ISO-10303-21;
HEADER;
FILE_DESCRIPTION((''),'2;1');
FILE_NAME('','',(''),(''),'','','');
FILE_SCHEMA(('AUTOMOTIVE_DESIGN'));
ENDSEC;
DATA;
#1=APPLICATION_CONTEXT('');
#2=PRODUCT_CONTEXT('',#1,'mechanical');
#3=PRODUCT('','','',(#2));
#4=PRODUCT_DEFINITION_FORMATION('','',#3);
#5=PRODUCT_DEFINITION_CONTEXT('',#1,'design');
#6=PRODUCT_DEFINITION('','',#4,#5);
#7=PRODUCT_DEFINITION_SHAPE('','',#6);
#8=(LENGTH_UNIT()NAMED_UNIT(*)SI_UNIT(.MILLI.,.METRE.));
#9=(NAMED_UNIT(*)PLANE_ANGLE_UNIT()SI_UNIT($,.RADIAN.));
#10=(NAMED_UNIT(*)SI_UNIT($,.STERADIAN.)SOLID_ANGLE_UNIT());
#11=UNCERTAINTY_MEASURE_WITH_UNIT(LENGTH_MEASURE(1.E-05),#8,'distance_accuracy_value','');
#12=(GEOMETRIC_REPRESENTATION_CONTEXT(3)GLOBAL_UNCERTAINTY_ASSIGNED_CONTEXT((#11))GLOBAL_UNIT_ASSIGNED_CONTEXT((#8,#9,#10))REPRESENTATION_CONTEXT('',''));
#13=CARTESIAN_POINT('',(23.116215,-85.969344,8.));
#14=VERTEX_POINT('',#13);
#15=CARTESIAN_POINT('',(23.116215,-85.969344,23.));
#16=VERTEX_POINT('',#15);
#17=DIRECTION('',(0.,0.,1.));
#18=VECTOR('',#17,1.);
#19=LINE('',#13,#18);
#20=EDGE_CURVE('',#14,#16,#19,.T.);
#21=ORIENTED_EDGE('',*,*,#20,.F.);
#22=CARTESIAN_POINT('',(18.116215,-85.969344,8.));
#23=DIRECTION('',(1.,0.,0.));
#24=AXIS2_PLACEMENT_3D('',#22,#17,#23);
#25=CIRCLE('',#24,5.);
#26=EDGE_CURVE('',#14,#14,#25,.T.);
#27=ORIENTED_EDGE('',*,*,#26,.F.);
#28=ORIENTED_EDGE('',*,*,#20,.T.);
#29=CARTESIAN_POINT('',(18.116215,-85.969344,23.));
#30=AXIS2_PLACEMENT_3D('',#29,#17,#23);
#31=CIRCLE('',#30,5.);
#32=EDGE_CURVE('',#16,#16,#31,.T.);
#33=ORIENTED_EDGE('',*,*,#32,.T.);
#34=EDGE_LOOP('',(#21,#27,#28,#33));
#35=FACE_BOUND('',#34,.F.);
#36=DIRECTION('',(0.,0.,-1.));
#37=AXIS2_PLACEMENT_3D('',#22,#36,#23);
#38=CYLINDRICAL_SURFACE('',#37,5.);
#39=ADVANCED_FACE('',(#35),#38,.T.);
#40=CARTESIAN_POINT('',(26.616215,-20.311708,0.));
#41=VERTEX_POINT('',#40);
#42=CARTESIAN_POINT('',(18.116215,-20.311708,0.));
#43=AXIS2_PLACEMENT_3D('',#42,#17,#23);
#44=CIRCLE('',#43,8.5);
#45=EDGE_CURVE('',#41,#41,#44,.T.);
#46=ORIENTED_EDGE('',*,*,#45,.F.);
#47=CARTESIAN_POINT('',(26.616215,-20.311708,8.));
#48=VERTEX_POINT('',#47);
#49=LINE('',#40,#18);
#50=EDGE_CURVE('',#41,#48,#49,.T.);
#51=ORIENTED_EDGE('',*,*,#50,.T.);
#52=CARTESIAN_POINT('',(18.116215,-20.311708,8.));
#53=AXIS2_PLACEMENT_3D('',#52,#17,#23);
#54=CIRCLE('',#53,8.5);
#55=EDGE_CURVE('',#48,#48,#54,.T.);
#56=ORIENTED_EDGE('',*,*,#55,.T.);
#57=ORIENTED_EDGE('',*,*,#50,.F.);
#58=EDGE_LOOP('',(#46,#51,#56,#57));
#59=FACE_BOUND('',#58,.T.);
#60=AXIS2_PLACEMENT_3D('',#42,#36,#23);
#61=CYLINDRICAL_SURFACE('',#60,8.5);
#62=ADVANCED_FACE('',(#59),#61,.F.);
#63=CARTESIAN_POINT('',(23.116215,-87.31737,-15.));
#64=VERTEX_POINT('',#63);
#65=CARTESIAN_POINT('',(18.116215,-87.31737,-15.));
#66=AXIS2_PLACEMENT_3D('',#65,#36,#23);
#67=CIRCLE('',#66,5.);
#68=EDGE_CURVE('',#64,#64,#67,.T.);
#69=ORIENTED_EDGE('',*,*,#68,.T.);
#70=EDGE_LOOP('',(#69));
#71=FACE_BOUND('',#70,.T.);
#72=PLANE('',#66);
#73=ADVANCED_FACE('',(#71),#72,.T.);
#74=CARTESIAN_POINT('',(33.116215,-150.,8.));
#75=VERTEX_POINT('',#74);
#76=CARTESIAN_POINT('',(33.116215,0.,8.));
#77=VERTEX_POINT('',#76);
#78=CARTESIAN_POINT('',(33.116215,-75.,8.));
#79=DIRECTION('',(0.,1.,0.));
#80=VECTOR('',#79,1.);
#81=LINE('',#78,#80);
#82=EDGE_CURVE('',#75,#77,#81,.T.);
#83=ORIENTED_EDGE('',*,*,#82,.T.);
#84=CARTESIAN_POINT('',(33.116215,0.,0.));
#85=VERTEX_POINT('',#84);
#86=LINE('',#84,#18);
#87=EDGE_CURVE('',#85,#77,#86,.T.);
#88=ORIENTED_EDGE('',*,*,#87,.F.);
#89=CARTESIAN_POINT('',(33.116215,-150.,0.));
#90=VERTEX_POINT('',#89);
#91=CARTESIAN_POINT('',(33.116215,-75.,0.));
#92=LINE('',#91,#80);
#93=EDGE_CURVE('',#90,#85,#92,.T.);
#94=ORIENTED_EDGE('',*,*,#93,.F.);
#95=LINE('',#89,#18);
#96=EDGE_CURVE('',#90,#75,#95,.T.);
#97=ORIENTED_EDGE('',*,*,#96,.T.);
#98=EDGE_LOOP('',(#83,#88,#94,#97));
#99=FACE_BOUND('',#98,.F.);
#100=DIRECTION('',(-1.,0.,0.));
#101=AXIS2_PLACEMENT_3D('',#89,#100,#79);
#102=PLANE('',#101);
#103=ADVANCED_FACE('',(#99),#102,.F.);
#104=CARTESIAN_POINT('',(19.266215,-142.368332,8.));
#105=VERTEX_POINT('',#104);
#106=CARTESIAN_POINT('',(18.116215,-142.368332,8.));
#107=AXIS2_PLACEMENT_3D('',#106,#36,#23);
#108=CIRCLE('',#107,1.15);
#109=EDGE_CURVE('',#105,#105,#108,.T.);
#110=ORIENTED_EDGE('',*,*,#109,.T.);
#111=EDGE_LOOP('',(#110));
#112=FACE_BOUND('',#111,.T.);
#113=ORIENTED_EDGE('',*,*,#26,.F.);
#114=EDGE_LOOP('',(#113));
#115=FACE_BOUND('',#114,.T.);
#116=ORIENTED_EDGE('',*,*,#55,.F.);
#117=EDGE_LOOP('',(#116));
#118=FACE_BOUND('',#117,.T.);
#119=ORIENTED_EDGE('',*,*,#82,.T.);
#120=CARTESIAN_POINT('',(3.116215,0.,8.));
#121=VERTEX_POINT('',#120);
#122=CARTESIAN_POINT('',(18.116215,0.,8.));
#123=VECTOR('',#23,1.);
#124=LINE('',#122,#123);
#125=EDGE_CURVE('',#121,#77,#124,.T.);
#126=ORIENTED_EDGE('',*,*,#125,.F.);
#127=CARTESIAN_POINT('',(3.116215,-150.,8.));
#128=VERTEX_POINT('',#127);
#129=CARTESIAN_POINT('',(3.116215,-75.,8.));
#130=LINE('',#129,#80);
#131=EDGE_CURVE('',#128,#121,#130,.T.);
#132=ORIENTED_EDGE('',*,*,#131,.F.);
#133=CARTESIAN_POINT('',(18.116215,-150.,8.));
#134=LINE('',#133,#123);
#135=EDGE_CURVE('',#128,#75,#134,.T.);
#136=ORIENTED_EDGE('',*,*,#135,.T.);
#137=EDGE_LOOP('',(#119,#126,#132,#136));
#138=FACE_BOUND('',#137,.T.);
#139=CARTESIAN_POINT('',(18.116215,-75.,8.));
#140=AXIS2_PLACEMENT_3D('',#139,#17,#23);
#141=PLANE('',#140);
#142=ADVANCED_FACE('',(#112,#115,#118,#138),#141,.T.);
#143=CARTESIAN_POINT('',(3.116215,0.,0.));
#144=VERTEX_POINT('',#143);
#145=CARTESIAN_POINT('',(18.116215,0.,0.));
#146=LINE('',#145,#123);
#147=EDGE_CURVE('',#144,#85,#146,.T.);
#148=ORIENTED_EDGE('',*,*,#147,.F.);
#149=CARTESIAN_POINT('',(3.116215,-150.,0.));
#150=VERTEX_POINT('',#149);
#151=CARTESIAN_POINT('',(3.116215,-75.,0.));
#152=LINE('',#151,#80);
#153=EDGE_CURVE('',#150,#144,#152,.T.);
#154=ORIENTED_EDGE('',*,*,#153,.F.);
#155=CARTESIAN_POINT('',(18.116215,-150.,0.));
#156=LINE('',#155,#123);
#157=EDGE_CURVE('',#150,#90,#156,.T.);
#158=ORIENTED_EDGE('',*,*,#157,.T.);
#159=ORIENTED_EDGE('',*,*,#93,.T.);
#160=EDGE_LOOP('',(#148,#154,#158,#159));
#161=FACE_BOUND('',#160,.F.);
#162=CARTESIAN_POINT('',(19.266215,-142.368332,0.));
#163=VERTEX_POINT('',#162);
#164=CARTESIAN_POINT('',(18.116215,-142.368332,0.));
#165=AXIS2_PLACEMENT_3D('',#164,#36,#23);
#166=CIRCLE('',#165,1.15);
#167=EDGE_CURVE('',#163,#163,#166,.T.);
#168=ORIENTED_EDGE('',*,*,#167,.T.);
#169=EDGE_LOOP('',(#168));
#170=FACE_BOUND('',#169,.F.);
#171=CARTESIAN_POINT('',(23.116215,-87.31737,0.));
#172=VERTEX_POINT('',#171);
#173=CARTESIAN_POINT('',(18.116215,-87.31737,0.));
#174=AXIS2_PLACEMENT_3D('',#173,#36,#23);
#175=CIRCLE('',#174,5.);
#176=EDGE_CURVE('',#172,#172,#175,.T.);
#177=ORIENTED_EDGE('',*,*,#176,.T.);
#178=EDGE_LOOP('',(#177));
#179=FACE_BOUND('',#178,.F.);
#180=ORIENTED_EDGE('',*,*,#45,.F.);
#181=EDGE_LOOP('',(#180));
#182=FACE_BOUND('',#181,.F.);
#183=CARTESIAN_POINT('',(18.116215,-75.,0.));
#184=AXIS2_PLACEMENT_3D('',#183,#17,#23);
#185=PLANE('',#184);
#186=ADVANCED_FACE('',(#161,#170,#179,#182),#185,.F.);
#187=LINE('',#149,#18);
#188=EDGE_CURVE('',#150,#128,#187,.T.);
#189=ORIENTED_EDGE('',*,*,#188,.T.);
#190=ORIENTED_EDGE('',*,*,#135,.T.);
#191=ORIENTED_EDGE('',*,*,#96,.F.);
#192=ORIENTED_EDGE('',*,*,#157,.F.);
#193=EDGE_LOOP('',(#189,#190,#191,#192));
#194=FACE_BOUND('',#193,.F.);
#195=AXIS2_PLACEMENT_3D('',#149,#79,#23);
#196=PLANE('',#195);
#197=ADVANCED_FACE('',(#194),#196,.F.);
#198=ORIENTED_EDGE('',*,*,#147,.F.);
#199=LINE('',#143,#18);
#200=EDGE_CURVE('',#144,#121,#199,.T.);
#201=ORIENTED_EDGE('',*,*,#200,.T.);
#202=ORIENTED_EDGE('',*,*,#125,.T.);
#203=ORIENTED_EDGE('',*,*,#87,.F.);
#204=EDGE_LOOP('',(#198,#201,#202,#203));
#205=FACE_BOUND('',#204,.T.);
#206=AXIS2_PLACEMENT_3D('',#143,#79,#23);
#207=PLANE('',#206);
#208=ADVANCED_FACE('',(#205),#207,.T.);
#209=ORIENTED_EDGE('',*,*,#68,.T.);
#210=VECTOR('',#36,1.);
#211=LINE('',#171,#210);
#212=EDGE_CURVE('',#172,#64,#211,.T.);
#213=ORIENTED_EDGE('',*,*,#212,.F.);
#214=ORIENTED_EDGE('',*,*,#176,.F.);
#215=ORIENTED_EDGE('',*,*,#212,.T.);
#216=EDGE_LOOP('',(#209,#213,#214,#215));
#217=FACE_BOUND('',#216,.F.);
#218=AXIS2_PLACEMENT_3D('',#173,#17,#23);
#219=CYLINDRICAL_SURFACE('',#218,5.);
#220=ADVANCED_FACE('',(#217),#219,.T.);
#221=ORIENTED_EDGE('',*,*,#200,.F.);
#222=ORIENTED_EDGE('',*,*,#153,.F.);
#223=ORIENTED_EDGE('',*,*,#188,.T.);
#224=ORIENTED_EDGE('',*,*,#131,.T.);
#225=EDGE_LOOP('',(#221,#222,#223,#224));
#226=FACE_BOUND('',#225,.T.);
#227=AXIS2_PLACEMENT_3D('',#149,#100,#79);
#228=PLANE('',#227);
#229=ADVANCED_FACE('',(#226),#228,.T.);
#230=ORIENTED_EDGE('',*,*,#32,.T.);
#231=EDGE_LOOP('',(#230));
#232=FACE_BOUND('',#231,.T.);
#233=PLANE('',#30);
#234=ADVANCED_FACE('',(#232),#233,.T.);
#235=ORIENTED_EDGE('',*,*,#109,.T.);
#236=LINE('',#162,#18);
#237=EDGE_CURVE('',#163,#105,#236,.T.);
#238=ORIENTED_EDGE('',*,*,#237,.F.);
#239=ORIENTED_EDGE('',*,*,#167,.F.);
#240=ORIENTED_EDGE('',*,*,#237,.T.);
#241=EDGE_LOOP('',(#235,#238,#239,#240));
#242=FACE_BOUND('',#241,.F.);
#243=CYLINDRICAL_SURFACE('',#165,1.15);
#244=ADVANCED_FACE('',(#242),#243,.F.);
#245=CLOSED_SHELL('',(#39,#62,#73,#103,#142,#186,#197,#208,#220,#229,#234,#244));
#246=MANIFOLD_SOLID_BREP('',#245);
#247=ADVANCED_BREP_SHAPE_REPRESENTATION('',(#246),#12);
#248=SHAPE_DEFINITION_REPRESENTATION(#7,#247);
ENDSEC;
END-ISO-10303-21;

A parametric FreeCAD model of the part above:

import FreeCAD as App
import Part
import Sketcher
Q = App.Units.Quantity

doc = App.newDocument("Part")
body = doc.addObject("PartDesign::Body", "Body")

sketch1 = body.newObject("Sketcher::SketchObject", "Sketch")
sketch1.AttachmentSupport = (doc.getObject("XY_Plane"), [""])
sketch1.MapMode = "FlatFace"
sketch1.addGeometry([
    Part.LineSegment(App.Vector(3, 0, 0), App.Vector(3, -150, 0)),
    Part.LineSegment(App.Vector(3, -150, 0), App.Vector(33, -150, 0)),
    Part.LineSegment(App.Vector(33, -150, 0), App.Vector(33, 0, 0)),
    Part.LineSegment(App.Vector(33, 0, 0), App.Vector(3, 0, 0)),
    Part.Circle(App.Vector(18, -20, 0), App.Vector(0, 0, 1), 8),
], False)
sketch1.addConstraint([
    Sketcher.Constraint("Coincident", 0, 2, 1, 1),
    Sketcher.Constraint("Coincident", 1, 2, 2, 1),
    Sketcher.Constraint("Coincident", 2, 2, 3, 1),
    Sketcher.Constraint("Coincident", 3, 2, 0, 1),
    Sketcher.Constraint("Vertical", 0),
    Sketcher.Constraint("Horizontal", 1),
    Sketcher.Constraint("Vertical", 2),
    Sketcher.Constraint("Horizontal", 3),
    Sketcher.Constraint("PointOnObject", 2, 2, -1),
    Sketcher.Constraint("Diameter", 4, Q("17 mm")),
    Sketcher.Constraint("DistanceX", 1, 1, 1, 2, Q("30 mm")),
    Sketcher.Constraint("DistanceY", 0, 2, 0, 1, Q("150 mm")),
    Sketcher.Constraint("DistanceX", 0, 2, 4, 3, Q("15 mm")),
    Sketcher.Constraint("DistanceY", 0, 2, 4, 3, Q("129.688292 mm")),
    Sketcher.Constraint("DistanceX", -1, 1, 4, 3, Q("18.116215 mm")),
])
pad1 = body.newObject("PartDesign::Pad", "Pad")
pad1.Profile = sketch1
pad1.Length = 8

sketch2 = body.newObject("Sketcher::SketchObject", "Sketch001")
sketch2.AttachmentSupport = (doc.getObject("XY_Plane"), [""])
sketch2.MapMode = "FlatFace"
sketch2.AttachmentOffset = App.Placement(App.Vector(0, 0, 8), App.Rotation())
sketch2.addGeometry(Part.Circle(App.Vector(18, -86, 0), App.Vector(0, 0, 1), 5), False)
sketch2.addConstraint([
    Sketcher.Constraint("Diameter", 0, Q("10 mm")),
    Sketcher.Constraint("DistanceX", -1, 1, 0, 3, Q("18.116215 mm")),
    Sketcher.Constraint("DistanceY", 0, 3, -1, 1, Q("85.969344 mm")),
])
pad2 = body.newObject("PartDesign::Pad", "Pad001")
pad2.Profile = sketch2
pad2.Length = 15

sketch3 = body.newObject("Sketcher::SketchObject", "Sketch002")
sketch3.AttachmentSupport = (doc.getObject("XY_Plane"), [""])
sketch3.MapMode = "FlatFace"
sketch3.addGeometry(Part.Circle(App.Vector(18, -87, 0), App.Vector(0, 0, 1), 5), False)
sketch3.addConstraint([
    Sketcher.Constraint("Diameter", 0, Q("10 mm")),
    Sketcher.Constraint("DistanceY", 0, 3, -1, 1, Q("87.31737 mm")),
    Sketcher.Constraint("DistanceX", -1, 1, 0, 3, Q("18.116215 mm")),
])
pad3 = body.newObject("PartDesign::Pad", "Pad002")
pad3.Profile = sketch3
pad3.Length = 15
pad3.Reversed = True

sketch4 = body.newObject("Sketcher::SketchObject", "Sketch003")
sketch4.AttachmentSupport = (doc.getObject("XY_Plane"), [""])
sketch4.MapMode = "FlatFace"
sketch4.addGeometry(Part.Circle(App.Vector(18.1, -142.4, 0), App.Vector(0, 0, 1), 1.1), False)
sketch4.addConstraint([
    Sketcher.Constraint("Diameter", 0, Q("2.3 mm")),
    Sketcher.Constraint("DistanceX", -1, 1, 0, 3, Q("18.116215 mm")),
    Sketcher.Constraint("DistanceY", 0, 3, -1, 1, Q("142.368332 mm")),
])
pocket1 = body.newObject("PartDesign::Pocket", "Pocket")
pocket1.Profile = sketch4
pocket1.Length = 25
pocket1.Reversed = True

doc.recompute()
